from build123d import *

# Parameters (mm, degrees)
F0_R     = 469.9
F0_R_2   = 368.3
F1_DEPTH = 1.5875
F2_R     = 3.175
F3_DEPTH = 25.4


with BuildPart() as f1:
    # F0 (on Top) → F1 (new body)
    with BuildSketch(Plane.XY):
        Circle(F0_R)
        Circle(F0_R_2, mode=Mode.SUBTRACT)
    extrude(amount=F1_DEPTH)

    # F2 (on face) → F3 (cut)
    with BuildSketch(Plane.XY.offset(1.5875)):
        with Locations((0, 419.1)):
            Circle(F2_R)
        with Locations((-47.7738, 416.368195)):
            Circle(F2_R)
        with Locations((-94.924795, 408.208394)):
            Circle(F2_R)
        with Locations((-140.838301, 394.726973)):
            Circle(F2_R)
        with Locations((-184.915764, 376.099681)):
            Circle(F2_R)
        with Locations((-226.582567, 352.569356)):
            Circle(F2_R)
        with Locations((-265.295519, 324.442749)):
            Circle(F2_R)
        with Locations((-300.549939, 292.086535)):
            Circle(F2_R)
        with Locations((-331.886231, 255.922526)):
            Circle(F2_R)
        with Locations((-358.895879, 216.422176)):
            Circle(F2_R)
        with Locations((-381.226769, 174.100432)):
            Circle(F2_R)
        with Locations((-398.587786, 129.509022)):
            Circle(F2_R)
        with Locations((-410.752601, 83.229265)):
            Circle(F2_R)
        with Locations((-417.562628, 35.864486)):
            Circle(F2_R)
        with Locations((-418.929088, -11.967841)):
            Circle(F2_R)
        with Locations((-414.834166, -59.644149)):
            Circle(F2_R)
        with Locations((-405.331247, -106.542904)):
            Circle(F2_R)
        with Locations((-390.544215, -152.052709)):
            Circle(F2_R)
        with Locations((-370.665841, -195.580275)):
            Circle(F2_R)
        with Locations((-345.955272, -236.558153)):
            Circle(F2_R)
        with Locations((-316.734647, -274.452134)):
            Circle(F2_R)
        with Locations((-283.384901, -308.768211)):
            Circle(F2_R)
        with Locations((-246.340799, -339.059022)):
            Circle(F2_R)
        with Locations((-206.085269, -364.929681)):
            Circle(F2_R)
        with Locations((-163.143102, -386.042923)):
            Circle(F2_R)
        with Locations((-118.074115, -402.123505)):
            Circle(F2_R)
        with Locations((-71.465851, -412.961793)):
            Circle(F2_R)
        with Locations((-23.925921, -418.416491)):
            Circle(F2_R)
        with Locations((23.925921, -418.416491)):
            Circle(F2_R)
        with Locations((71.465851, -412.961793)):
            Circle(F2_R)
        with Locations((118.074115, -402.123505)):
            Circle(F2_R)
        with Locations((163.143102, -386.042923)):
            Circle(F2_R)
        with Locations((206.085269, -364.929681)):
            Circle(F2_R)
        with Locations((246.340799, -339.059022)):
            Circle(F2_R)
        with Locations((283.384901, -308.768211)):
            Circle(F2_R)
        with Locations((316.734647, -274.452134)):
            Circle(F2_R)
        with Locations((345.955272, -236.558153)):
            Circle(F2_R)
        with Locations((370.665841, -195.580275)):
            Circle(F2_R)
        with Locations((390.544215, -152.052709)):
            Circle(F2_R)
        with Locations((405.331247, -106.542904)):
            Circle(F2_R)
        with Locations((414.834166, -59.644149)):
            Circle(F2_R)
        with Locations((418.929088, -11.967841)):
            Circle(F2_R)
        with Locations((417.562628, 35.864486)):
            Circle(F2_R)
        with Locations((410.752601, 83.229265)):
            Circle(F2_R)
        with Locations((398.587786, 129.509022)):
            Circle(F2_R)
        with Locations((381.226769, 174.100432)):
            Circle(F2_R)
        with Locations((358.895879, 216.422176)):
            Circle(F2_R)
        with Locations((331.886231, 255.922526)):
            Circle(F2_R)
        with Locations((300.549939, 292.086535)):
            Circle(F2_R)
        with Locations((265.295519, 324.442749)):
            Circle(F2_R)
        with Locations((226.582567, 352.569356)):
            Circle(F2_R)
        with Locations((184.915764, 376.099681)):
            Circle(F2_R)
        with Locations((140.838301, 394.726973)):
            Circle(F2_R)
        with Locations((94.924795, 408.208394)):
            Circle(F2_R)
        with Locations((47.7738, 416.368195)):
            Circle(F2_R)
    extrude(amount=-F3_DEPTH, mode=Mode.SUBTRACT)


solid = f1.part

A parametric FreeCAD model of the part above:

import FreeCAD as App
import Part
import Sketcher

V = App.Vector
Q = App.Units.Quantity

doc = App.newDocument("Part")
body = doc.addObject("PartDesign::Body", "Body")

# Sketch on XY plane
sketch1 = body.newObject("Sketcher::SketchObject", "Sketch")
sketch1.AttachmentSupport = (doc.getObject("XY_Plane"), [""])
sketch1.MapMode = "FlatFace"
sketch1.addGeometry([
    Part.Circle(V(0, 0, 0), V(0, 0, 1), 470),
    Part.Circle(V(0, 0, 0), V(0, 0, 1), 368),
], False)
sketch1.addConstraint([
    Sketcher.Constraint("Coincident", 0, 3, -1, 1),
    Sketcher.Constraint("Coincident", 1, 3, -1, 1),
    Sketcher.Constraint("Diameter", 0, Q("37 in")),
    Sketcher.Constraint("Diameter", 1, Q("29 in")),
])
pad1 = body.newObject("PartDesign::Pad", "Pad")
pad1.Profile = sketch1
pad1.Length = Q("0.0625 in")

# Sketch on XY plane
sketch2 = body.newObject("Sketcher::SketchObject", "Sketch001")
sketch2.AttachmentSupport = (doc.getObject("XY_Plane"), [""])
sketch2.MapMode = "FlatFace"
sketch2.AttachmentOffset = App.Placement(V(0, 0, 0.0625 * 25.4), App.Rotation())
sketch2.addGeometry([
    Part.Circle(V(0, 419.1, 0), V(0, 0, 1), 3.2),  # 0
    Part.Circle(V(-47.8, 416.4, 0), V(0, 0, 1), 3.2),  # 1
    Part.Circle(V(-94.9, 408.2, 0), V(0, 0, 1), 3.2),  # 2
    Part.Circle(V(-140.8, 394.7, 0), V(0, 0, 1), 3.2),  # 3
    Part.Circle(V(-184.9, 376.1, 0), V(0, 0, 1), 3.2),  # 4
    Part.Circle(V(-226.6, 352.6, 0), V(0, 0, 1), 3.2),  # 5
    Part.Circle(V(-265.3, 324.4, 0), V(0, 0, 1), 3.2),  # 6
    Part.Circle(V(-300.5, 292.1, 0), V(0, 0, 1), 3.2),  # 7
    Part.Circle(V(-331.9, 255.9, 0), V(0, 0, 1), 3.2),  # 8
    Part.Circle(V(-358.9, 216.4, 0), V(0, 0, 1), 3.2),  # 9
    Part.Circle(V(-381.2, 174.1, 0), V(0, 0, 1), 3.2),  # 10
    Part.Circle(V(-398.6, 129.5, 0), V(0, 0, 1), 3.2),  # 11
    Part.Circle(V(-410.8, 83.2, 0), V(0, 0, 1), 3.2),  # 12
    Part.Circle(V(-417.6, 35.9, 0), V(0, 0, 1), 3.2),  # 13
    Part.Circle(V(-418.9, -12, 0), V(0, 0, 1), 3.2),  # 14
    Part.Circle(V(-414.8, -59.6, 0), V(0, 0, 1), 3.2),  # 15
    Part.Circle(V(-405.3, -106.5, 0), V(0, 0, 1), 3.2),  # 16
    Part.Circle(V(-390.5, -152.1, 0), V(0, 0, 1), 3.2),  # 17
    Part.Circle(V(-370.7, -195.6, 0), V(0, 0, 1), 3.2),  # 18
    Part.Circle(V(-346, -236.6, 0), V(0, 0, 1), 3.2),  # 19
    Part.Circle(V(-316.7, -274.5, 0), V(0, 0, 1), 3.2),  # 20
    Part.Circle(V(-283.4, -308.8, 0), V(0, 0, 1), 3.2),  # 21
    Part.Circle(V(-246.3, -339.1, 0), V(0, 0, 1), 3.2),  # 22
    Part.Circle(V(-206.1, -364.9, 0), V(0, 0, 1), 3.2),  # 23
    Part.Circle(V(-163.1, -386, 0), V(0, 0, 1), 3.2),  # 24
    Part.Circle(V(-118.1, -402.1, 0), V(0, 0, 1), 3.2),  # 25
    Part.Circle(V(-71.5, -413, 0), V(0, 0, 1), 3.2),  # 26
    Part.Circle(V(-23.9, -418.4, 0), V(0, 0, 1), 3.2),  # 27
    Part.Circle(V(23.9, -418.4, 0), V(0, 0, 1), 3.2),  # 28
    Part.Circle(V(71.5, -413, 0), V(0, 0, 1), 3.2),  # 29
    Part.Circle(V(118.1, -402.1, 0), V(0, 0, 1), 3.2),  # 30
    Part.Circle(V(163.1, -386, 0), V(0, 0, 1), 3.2),  # 31
    Part.Circle(V(206.1, -364.9, 0), V(0, 0, 1), 3.2),  # 32
    Part.Circle(V(246.3, -339.1, 0), V(0, 0, 1), 3.2),  # 33
    Part.Circle(V(283.4, -308.8, 0), V(0, 0, 1), 3.2),  # 34
    Part.Circle(V(316.7, -274.5, 0), V(0, 0, 1), 3.2),  # 35
    Part.Circle(V(346, -236.6, 0), V(0, 0, 1), 3.2),  # 36
    Part.Circle(V(370.7, -195.6, 0), V(0, 0, 1), 3.2),  # 37
    Part.Circle(V(390.5, -152.1, 0), V(0, 0, 1), 3.2),  # 38
    Part.Circle(V(405.3, -106.5, 0), V(0, 0, 1), 3.2),  # 39
    Part.Circle(V(414.8, -59.6, 0), V(0, 0, 1), 3.2),  # 40
    Part.Circle(V(418.9, -12, 0), V(0, 0, 1), 3.2),  # 41
    Part.Circle(V(417.6, 35.9, 0), V(0, 0, 1), 3.2),  # 42
    Part.Circle(V(410.8, 83.2, 0), V(0, 0, 1), 3.2),  # 43
    Part.Circle(V(398.6, 129.5, 0), V(0, 0, 1), 3.2),  # 44
    Part.Circle(V(381.2, 174.1, 0), V(0, 0, 1), 3.2),  # 45
    Part.Circle(V(358.9, 216.4, 0), V(0, 0, 1), 3.2),  # 46
    Part.Circle(V(331.9, 255.9, 0), V(0, 0, 1), 3.2),  # 47
    Part.Circle(V(300.5, 292.1, 0), V(0, 0, 1), 3.2),  # 48
    Part.Circle(V(265.3, 324.4, 0), V(0, 0, 1), 3.2),  # 49
    Part.Circle(V(226.6, 352.6, 0), V(0, 0, 1), 3.2),  # 50
    Part.Circle(V(184.9, 376.1, 0), V(0, 0, 1), 3.2),  # 51
    Part.Circle(V(140.8, 394.7, 0), V(0, 0, 1), 3.2),  # 52
    Part.Circle(V(94.9, 408.2, 0), V(0, 0, 1), 3.2),  # 53
    Part.Circle(V(47.8, 416.4, 0), V(0, 0, 1), 3.2),  # 54
], False)
sketch2.addConstraint([
    Sketcher.Constraint("Equal", 0, 1),
    Sketcher.Constraint("Equal", 1, 2),
    Sketcher.Constraint("Equal", 2, 3),
    Sketcher.Constraint("Equal", 3, 4),
    Sketcher.Constraint("Equal", 4, 5),
    Sketcher.Constraint("Equal", 5, 6),
    Sketcher.Constraint("Equal", 6, 7),
    Sketcher.Constraint("Equal", 7, 8),
    Sketcher.Constraint("Equal", 8, 9),
    Sketcher.Constraint("Equal", 9, 10),
    Sketcher.Constraint("Equal", 10, 11),
    Sketcher.Constraint("Equal", 11, 12),
    Sketcher.Constraint("Equal", 12, 13),
    Sketcher.Constraint("Equal", 13, 14),
    Sketcher.Constraint("Equal", 14, 15),
    Sketcher.Constraint("Equal", 15, 16),
    Sketcher.Constraint("Equal", 16, 17),
    Sketcher.Constraint("Equal", 17, 18),
    Sketcher.Constraint("Equal", 18, 19),
    Sketcher.Constraint("Equal", 19, 20),
    Sketcher.Constraint("Equal", 20, 21),
    Sketcher.Constraint("Equal", 21, 22),
    Sketcher.Constraint("Equal", 22, 23),
    Sketcher.Constraint("Equal", 23, 24),
    Sketcher.Constraint("Equal", 24, 25),
    Sketcher.Constraint("Equal", 25, 26),
    Sketcher.Constraint("Equal", 26, 27),
    Sketcher.Constraint("Equal", 27, 28),
    Sketcher.Constraint("Equal", 28, 29),
    Sketcher.Constraint("Equal", 29, 30),
    Sketcher.Constraint("Equal", 30, 31),
    Sketcher.Constraint("Equal", 31, 32),
    Sketcher.Constraint("Equal", 32, 33),
    Sketcher.Constraint("Equal", 33, 34),
    Sketcher.Constraint("Equal", 34, 35),
    Sketcher.Constraint("Equal", 35, 36),
    Sketcher.Constraint("Equal", 36, 37),
    Sketcher.Constraint("Equal", 37, 38),
    Sketcher.Constraint("Equal", 38, 39),
    Sketcher.Constraint("Equal", 39, 40),
    Sketcher.Constraint("Equal", 40, 41),
    Sketcher.Constraint("Equal", 41, 42),
    Sketcher.Constraint("Equal", 42, 43),
    Sketcher.Constraint("Equal", 43, 44),
    Sketcher.Constraint("Equal", 44, 45),
    Sketcher.Constraint("Equal", 45, 46),
    Sketcher.Constraint("Equal", 46, 47),
    Sketcher.Constraint("Equal", 47, 48),
    Sketcher.Constraint("Equal", 48, 49),
    Sketcher.Constraint("Equal", 49, 50),
    Sketcher.Constraint("Equal", 50, 51),
    Sketcher.Constraint("Equal", 51, 52),
    Sketcher.Constraint("Equal", 52, 53),
    Sketcher.Constraint("Equal", 53, 54),
    Sketcher.Constraint("Symmetric", 27, 3, 28, 3, -2),
    Sketcher.Constraint("Symmetric", 26, 3, 29, 3, -2),
    Sketcher.Constraint("Symmetric", 25, 3, 30, 3, -2),
    Sketcher.Constraint("Symmetric", 24, 3, 31, 3, -2),
    Sketcher.Constraint("Symmetric", 23, 3, 32, 3, -2),
    Sketcher.Constraint("Symmetric", 22, 3, 33, 3, -2),
    Sketcher.Constraint("Symmetric", 21, 3, 34, 3, -2),
    Sketcher.Constraint("Symmetric", 20, 3, 35, 3, -2),
    Sketcher.Constraint("Symmetric", 19, 3, 36, 3, -2),
    Sketcher.Constraint("Symmetric", 18, 3, 37, 3, -2),
    Sketcher.Constraint("Symmetric", 17, 3, 38, 3, -2),
    Sketcher.Constraint("Symmetric", 16, 3, 39, 3, -2),
    Sketcher.Constraint("Symmetric", 15, 3, 40, 3, -2),
    Sketcher.Constraint("Symmetric", 14, 3, 41, 3, -2),
    Sketcher.Constraint("Symmetric", 13, 3, 42, 3, -2),
    Sketcher.Constraint("Symmetric", 12, 3, 43, 3, -2),
    Sketcher.Constraint("Symmetric", 11, 3, 44, 3, -2),
    Sketcher.Constraint("Symmetric", 10, 3, 45, 3, -2),
    Sketcher.Constraint("Symmetric", 9, 3, 46, 3, -2),
    Sketcher.Constraint("Symmetric", 8, 3, 47, 3, -2),
    Sketcher.Constraint("Symmetric", 7, 3, 48, 3, -2),
    Sketcher.Constraint("Symmetric", 6, 3, 49, 3, -2),
    Sketcher.Constraint("Symmetric", 5, 3, 50, 3, -2),
    Sketcher.Constraint("Symmetric", 4, 3, 51, 3, -2),
    Sketcher.Constraint("Symmetric", 3, 3, 52, 3, -2),
    Sketcher.Constraint("Symmetric", 2, 3, 53, 3, -2),
    Sketcher.Constraint("Symmetric", 1, 3, 54, 3, -2),
    Sketcher.Constraint("PointOnObject", 0, 3, -2),
    Sketcher.Constraint("Diameter", 0, Q("0.25 in")),
    Sketcher.Constraint("DistanceY", -1, 1, 0, 3, Q("16.5 in")),
    Sketcher.Constraint("DistanceX", 17, 3, 22, 3, Q("5.6772998 in")),
    Sketcher.Constraint("DistanceX", 22, 3, 24, 3, Q("3.2754999 in")),
    Sketcher.Constraint("DistanceX", 1, 3, -1, 1, Q("47.7738 mm")),
    Sketcher.Constraint("DistanceX", 3, 3, -1, 1, Q("140.838301 mm")),
    Sketcher.Constraint("DistanceX", 12, 3, -1, 1, Q("410.752601 mm")),
    Sketcher.Constraint("DistanceX", 21, 3, -1, 1, Q("283.384901 mm")),
    Sketcher.Constraint("DistanceX", 22, 3, -1, 1, Q("246.340799 mm")),
    Sketcher.Constraint("DistanceY", 2, 3, 1, 3, Q("8.159801 mm")),
    Sketcher.Constraint("DistanceX", 10, 3, 5, 3, Q("154.644202 mm")),
    Sketcher.Constraint("DistanceX", 14, 3, 11, 3, Q("20.341302 mm")),
    Sketcher.Constraint("DistanceX", 16, 3, 20, 3, Q("88.5966 mm")),
    Sketcher.Constraint("DistanceY", 24, 3, 22, 3, Q("46.983901 mm")),
    Sketcher.Constraint("DistanceY", 27, 3, 26, 3, Q("5.454698 mm")),
    Sketcher.Constraint("DistanceX", 26, 3, 29, 3, Q("142.931702 mm")),
    Sketcher.Constraint("DistanceY", -1, 1, 4, 3, Q("376.099681 mm")),
    Sketcher.Constraint("DistanceX", 6, 3, -1, 1, Q("265.295519 mm")),
    Sketcher.Constraint("DistanceY", -1, 1, 6, 3, Q("324.442749 mm")),
    Sketcher.Constraint("DistanceX", 7, 3, -1, 1, Q("300.549939 mm")),
    Sketcher.Constraint("DistanceX", 8, 3, -1, 1, Q("331.886231 mm")),
    Sketcher.Constraint("DistanceX", 9, 3, -1, 1, Q("358.895879 mm")),
    Sketcher.Constraint("DistanceX", 10, 3, -1, 1, Q("381.226769 mm")),
    Sketcher.Constraint("DistanceY", -1, 1, 11, 3, Q("129.509022 mm")),
    Sketcher.Constraint("DistanceX", 13, 3, -1, 1, Q("417.562628 mm")),
    Sketcher.Constraint("DistanceX", 14, 3, -1, 1, Q("418.929088 mm")),
    Sketcher.Constraint("DistanceY", 14, 3, -1, 1, Q("11.967841 mm")),
    Sketcher.Constraint("DistanceY", 15, 3, -1, 1, Q("59.644149 mm")),
    Sketcher.Constraint("DistanceY", 17, 3, -1, 1, Q("152.052709 mm")),
    Sketcher.Constraint("DistanceX", 18, 3, -1, 1, Q("370.665841 mm")),
    Sketcher.Constraint("DistanceX", 19, 3, -1, 1, Q("345.955272 mm")),
    Sketcher.Constraint("DistanceY", 21, 3, -1, 1, Q("308.768211 mm")),
    Sketcher.Constraint("DistanceX", 23, 3, -1, 1, Q("206.085269 mm")),
    Sketcher.Constraint("DistanceY", 23, 3, -1, 1, Q("364.929681 mm")),
    Sketcher.Constraint("DistanceX", 27, 3, -1, 1, Q("23.925921 mm")),
    Sketcher.Constraint("DistanceY", 27, 3, -1, 1, Q("418.416491 mm")),
    Sketcher.Constraint("DistanceY", 3, 3, 2, 3, Q("13.481421 mm")),
    Sketcher.Constraint("DistanceX", 4, 3, 2, 3, Q("89.990969 mm")),
    Sketcher.Constraint("DistanceY", 5, 3, 1, 3, Q("63.798839 mm")),
    Sketcher.Constraint("DistanceY", 7, 3, 5, 3, Q("60.482821 mm")),
    Sketcher.Constraint("DistanceY", 8, 3, 7, 3, Q("36.164009 mm")),
    Sketcher.Constraint("DistanceY", 9, 3, 8, 3, Q("39.50035 mm")),
    Sketcher.Constraint("DistanceY", 11, 3, 10, 3, Q("44.59141 mm")),
    Sketcher.Constraint("DistanceY", 12, 3, 9, 3, Q("133.192911 mm")),
    Sketcher.Constraint("DistanceY", 13, 3, 12, 3, Q("47.364779 mm")),
    Sketcher.Constraint("DistanceX", 14, 3, 15, 3, Q("4.094922 mm")),
    Sketcher.Constraint("DistanceX", 15, 3, 16, 3, Q("9.502919 mm")),
    Sketcher.Constraint("DistanceY", 16, 3, 13, 3, Q("142.40739 mm")),
    Sketcher.Constraint("DistanceY", 18, 3, 16, 3, Q("89.037371 mm")),
    Sketcher.Constraint("DistanceY", 19, 3, 18, 3, Q("40.977878 mm")),
    Sketcher.Constraint("DistanceY", 20, 3, 19, 3, Q("37.893981 mm")),
    Sketcher.Constraint("DistanceY", 21, 3, 19, 3, Q("72.210058 mm")),
    Sketcher.Constraint("DistanceY", 22, 3, 21, 3, Q("30.290811 mm")),
    Sketcher.Constraint("DistanceX", 20, 3, 25, 3, Q("198.660532 mm")),
    Sketcher.Constraint("DistanceY", 25, 3, 20, 3, Q("127.671371 mm")),
    Sketcher.Constraint("DistanceX", 2, 3, -1, 1, Q("94.924795 mm")),
])
pocket1 = body.newObject("PartDesign::Pocket", "Pocket")
pocket1.Profile = sketch2
pocket1.Length = Q("1 in")

doc.recompute()
